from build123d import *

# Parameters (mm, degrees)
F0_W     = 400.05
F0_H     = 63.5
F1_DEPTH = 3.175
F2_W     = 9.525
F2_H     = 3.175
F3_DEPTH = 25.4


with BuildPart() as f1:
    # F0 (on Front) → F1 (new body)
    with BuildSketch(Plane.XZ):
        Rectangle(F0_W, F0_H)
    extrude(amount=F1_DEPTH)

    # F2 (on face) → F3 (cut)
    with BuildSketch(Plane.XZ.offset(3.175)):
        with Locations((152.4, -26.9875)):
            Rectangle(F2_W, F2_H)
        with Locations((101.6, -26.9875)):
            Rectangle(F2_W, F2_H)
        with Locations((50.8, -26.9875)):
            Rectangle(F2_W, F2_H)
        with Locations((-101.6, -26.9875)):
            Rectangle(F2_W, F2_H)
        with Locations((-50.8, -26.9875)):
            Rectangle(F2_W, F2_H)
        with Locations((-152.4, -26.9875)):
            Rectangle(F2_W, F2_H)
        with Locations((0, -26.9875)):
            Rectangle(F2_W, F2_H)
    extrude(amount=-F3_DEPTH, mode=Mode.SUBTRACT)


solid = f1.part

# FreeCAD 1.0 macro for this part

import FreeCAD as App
import Part
import Sketcher

V = App.Vector
Q = App.Units.Quantity

doc = App.newDocument("Part")
body = doc.addObject("PartDesign::Body", "Body")

# Sketch on XZ plane
sketch1 = body.newObject("Sketcher::SketchObject", "Sketch")
sketch1.AttachmentSupport = (doc.getObject("XZ_Plane"), [""])
sketch1.MapMode = "FlatFace"
sketch1.addGeometry([
    Part.LineSegment(V(-200, 32, 0), V(-200, -32, 0)),
    Part.LineSegment(V(-200, -32, 0), V(200, -32, 0)),
    Part.LineSegment(V(200, -32, 0), V(200, 32, 0)),
    Part.LineSegment(V(200, 32, 0), V(-200, 32, 0)),
], False)
sketch1.addConstraint([
    Sketcher.Constraint("Coincident", 0, 2, 1, 1),
    Sketcher.Constraint("Coincident", 1, 2, 2, 1),
    Sketcher.Constraint("Coincident", 2, 2, 3, 1),
    Sketcher.Constraint("Coincident", 3, 2, 0, 1),
    Sketcher.Constraint("Vertical", 0),
    Sketcher.Constraint("Horizontal", 1),
    Sketcher.Constraint("Vertical", 2),
    Sketcher.Constraint("Horizontal", 3),
    Sketcher.Constraint("Symmetric", 0, 2, 2, 2, -1, 1),
    Sketcher.Constraint("DistanceY", 0, 2, 0, 1, Q("2.5 in")),
    Sketcher.Constraint("DistanceX", 1, 1, 1, 2, Q("15.75 in")),
])
pad1 = body.newObject("PartDesign::Pad", "Pad")
pad1.Profile = sketch1
pad1.Length = Q("0.125 in")

# Sketch on XZ plane
sketch2 = body.newObject("Sketcher::SketchObject", "Sketch001")
sketch2.AttachmentSupport = (doc.getObject("XZ_Plane"), [""])
sketch2.MapMode = "FlatFace"
sketch2.AttachmentOffset = App.Placement(V(0, 0, 0.125 * 25.4), App.Rotation())
sketch2.addGeometry([
    Part.LineSegment(V(147.6, -25.4, 0), V(147.6, -28.6, 0)),  # 0
    Part.LineSegment(V(147.6, -28.6, 0), V(157.2, -28.6, 0)),  # 1
    Part.LineSegment(V(157.2, -28.6, 0), V(157.2, -25.4, 0)),  # 2
    Part.LineSegment(V(157.2, -25.4, 0), V(147.6, -25.4, 0)),  # 3
    Part.LineSegment(V(96.8, -25.4, 0), V(96.8, -28.6, 0)),  # 4
    Part.LineSegment(V(96.8, -28.6, 0), V(106.4, -28.6, 0)),  # 5
    Part.LineSegment(V(106.4, -28.6, 0), V(106.4, -25.4, 0)),  # 6
    Part.LineSegment(V(106.4, -25.4, 0), V(96.8, -25.4, 0)),  # 7
    Part.LineSegment(V(46, -25.4, 0), V(46, -28.6, 0)),  # 8
    Part.LineSegment(V(46, -28.6, 0), V(55.6, -28.6, 0)),  # 9
    Part.LineSegment(V(55.6, -28.6, 0), V(55.6, -25.4, 0)),  # 10
    Part.LineSegment(V(55.6, -25.4, 0), V(46, -25.4, 0)),  # 11
    Part.LineSegment(V(-106.4, -25.4, 0), V(-106.4, -28.6, 0)),  # 12
    Part.LineSegment(V(-106.4, -28.6, 0), V(-96.8, -28.6, 0)),  # 13
    Part.LineSegment(V(-96.8, -28.6, 0), V(-96.8, -25.4, 0)),  # 14
    Part.LineSegment(V(-96.8, -25.4, 0), V(-106.4, -25.4, 0)),  # 15
    Part.LineSegment(V(-55.6, -25.4, 0), V(-55.6, -28.6, 0)),  # 16
    Part.LineSegment(V(-55.6, -28.6, 0), V(-46, -28.6, 0)),  # 17
    Part.LineSegment(V(-46, -28.6, 0), V(-46, -25.4, 0)),  # 18
    Part.LineSegment(V(-46, -25.4, 0), V(-55.6, -25.4, 0)),  # 19
    Part.LineSegment(V(-157.2, -25.4, 0), V(-157.2, -28.6, 0)),  # 20
    Part.LineSegment(V(-157.2, -28.6, 0), V(-147.6, -28.6, 0)),  # 21
    Part.LineSegment(V(-147.6, -28.6, 0), V(-147.6, -25.4, 0)),  # 22
    Part.LineSegment(V(-147.6, -25.4, 0), V(-157.2, -25.4, 0)),  # 23
    Part.LineSegment(V(-4.8, -25.4, 0), V(-4.8, -28.6, 0)),  # 24
    Part.LineSegment(V(-4.8, -28.6, 0), V(4.8, -28.6, 0)),  # 25
    Part.LineSegment(V(4.8, -28.6, 0), V(4.8, -25.4, 0)),  # 26
    Part.LineSegment(V(4.8, -25.4, 0), V(-4.8, -25.4, 0)),  # 27
], False)
sketch2.addConstraint([
    Sketcher.Constraint("Coincident", 0, 2, 1, 1),
    Sketcher.Constraint("Coincident", 1, 2, 2, 1),
    Sketcher.Constraint("Coincident", 2, 2, 3, 1),
    Sketcher.Constraint("Coincident", 3, 2, 0, 1),
    Sketcher.Constraint("Coincident", 4, 2, 5, 1),
    Sketcher.Constraint("Coincident", 5, 2, 6, 1),
    Sketcher.Constraint("Coincident", 6, 2, 7, 1),
    Sketcher.Constraint("Coincident", 7, 2, 4, 1),
    Sketcher.Constraint("Coincident", 8, 2, 9, 1),
    Sketcher.Constraint("Coincident", 9, 2, 10, 1),
    Sketcher.Constraint("Coincident", 10, 2, 11, 1),
    Sketcher.Constraint("Coincident", 11, 2, 8, 1),
    Sketcher.Constraint("Coincident", 12, 2, 13, 1),
    Sketcher.Constraint("Coincident", 13, 2, 14, 1),
    Sketcher.Constraint("Coincident", 14, 2, 15, 1),
    Sketcher.Constraint("Coincident", 15, 2, 12, 1),
    Sketcher.Constraint("Coincident", 16, 2, 17, 1),
    Sketcher.Constraint("Coincident", 17, 2, 18, 1),
    Sketcher.Constraint("Coincident", 18, 2, 19, 1),
    Sketcher.Constraint("Coincident", 19, 2, 16, 1),
    Sketcher.Constraint("Coincident", 20, 2, 21, 1),
    Sketcher.Constraint("Coincident", 21, 2, 22, 1),
    Sketcher.Constraint("Coincident", 22, 2, 23, 1),
    Sketcher.Constraint("Coincident", 23, 2, 20, 1),
    Sketcher.Constraint("Coincident", 24, 2, 25, 1),
    Sketcher.Constraint("Coincident", 25, 2, 26, 1),
    Sketcher.Constraint("Coincident", 26, 2, 27, 1),
    Sketcher.Constraint("Coincident", 27, 2, 24, 1),
    Sketcher.Constraint("Vertical", 0),
    Sketcher.Constraint("Horizontal", 1),
    Sketcher.Constraint("Vertical", 2),
    Sketcher.Constraint("Horizontal", 3),
    Sketcher.Constraint("Vertical", 4),
    Sketcher.Constraint("Horizontal", 5),
    Sketcher.Constraint("Vertical", 6),
    Sketcher.Constraint("Horizontal", 7),
    Sketcher.Constraint("Vertical", 8),
    Sketcher.Constraint("Horizontal", 9),
    Sketcher.Constraint("Vertical", 10),
    Sketcher.Constraint("Horizontal", 11),
    Sketcher.Constraint("Vertical", 12),
    Sketcher.Constraint("Horizontal", 13),
    Sketcher.Constraint("Vertical", 14),
    Sketcher.Constraint("Horizontal", 15),
    Sketcher.Constraint("Vertical", 16),
    Sketcher.Constraint("Horizontal", 17),
    Sketcher.Constraint("Vertical", 18),
    Sketcher.Constraint("Horizontal", 19),
    Sketcher.Constraint("Vertical", 20),
    Sketcher.Constraint("Horizontal", 21),
    Sketcher.Constraint("Vertical", 22),
    Sketcher.Constraint("Horizontal", 23),
    Sketcher.Constraint("Vertical", 24),
    Sketcher.Constraint("Horizontal", 25),
    Sketcher.Constraint("Vertical", 26),
    Sketcher.Constraint("Horizontal", 27),
    Sketcher.Constraint("Symmetric", 5, 2, 12, 2, -2),
    Sketcher.Constraint("Symmetric", 7, 2, 14, 2, -2),
    Sketcher.Constraint("Symmetric", 9, 2, 16, 2, -2),
    Sketcher.Constraint("Symmetric", 11, 2, 18, 2, -2),
    Sketcher.Constraint("Symmetric", 1, 2, 20, 2, -2),
    Sketcher.Constraint("Symmetric", 3, 2, 22, 2, -2),
    Sketcher.Constraint("Horizontal", 1, 2, 4, 2),
    Sketcher.Constraint("Horizontal", 3, 2, 6, 2),
    Sketcher.Constraint("Horizontal", 5, 2, 8, 2),
    Sketcher.Constraint("Horizontal", 7, 2, 10, 2),
    Sketcher.Constraint("Horizontal", 21, 2, 24, 2),
    Sketcher.Constraint("Horizontal", 23, 2, 26, 2),
    Sketcher.Constraint("Equal", 3, 5),
    Sketcher.Constraint("Equal", 7, 9),
    Sketcher.Constraint("Equal", 23, 25),
    Sketcher.Constraint("DistanceY", 2, 2, -1, 1, Q("1 in")),
    Sketcher.Constraint("DistanceX", 4, 2, 0, 2, Q("2 in")),
    Sketcher.Constraint("DistanceX", 8, 2, 4, 2, Q("2 in")),
    Sketcher.Constraint("DistanceX", 12, 2, 8, 2, Q("6 in")),
    Sketcher.Constraint("DistanceX", 16, 2, 24, 2, Q("2 in")),
    Sketcher.Constraint("DistanceX", 1, 1, 1, 2, Q("0.375 in")),
    Sketcher.Constraint("DistanceY", 0, 2, 0, 1, Q("0.125 in")),
])
pocket1 = body.newObject("PartDesign::Pocket", "Pocket")
pocket1.Profile = sketch2
pocket1.Length = Q("1 in")

doc.recompute()
